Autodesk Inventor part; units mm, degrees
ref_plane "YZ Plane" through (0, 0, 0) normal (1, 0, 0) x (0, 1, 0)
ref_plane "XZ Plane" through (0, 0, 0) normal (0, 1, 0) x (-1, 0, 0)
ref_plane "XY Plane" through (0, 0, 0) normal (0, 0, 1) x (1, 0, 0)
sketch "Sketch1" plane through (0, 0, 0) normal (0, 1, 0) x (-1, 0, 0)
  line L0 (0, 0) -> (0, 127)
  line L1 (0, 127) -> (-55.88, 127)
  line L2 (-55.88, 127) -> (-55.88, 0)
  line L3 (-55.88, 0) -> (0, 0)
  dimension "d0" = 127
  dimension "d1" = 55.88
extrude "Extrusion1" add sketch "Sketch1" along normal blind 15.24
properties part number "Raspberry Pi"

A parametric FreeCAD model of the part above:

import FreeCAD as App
import Part
import Sketcher

V = App.Vector
Q = App.Units.Quantity


def add_polygon(sketch, points):
    """Adds a closed chain of lines whose ends are joined by coincident constraints."""
    first, n = sketch.GeometryCount, len(points)
    for a, b in zip(points, points[1:] + points[:1]):
        sketch.addGeometry(Part.LineSegment(App.Vector(*a, 0), App.Vector(*b, 0)), False)
    for i in range(n):
        sketch.addConstraint(Sketcher.Constraint("Coincident", first + i, 2, first + (i + 1) % n, 1))

doc = App.newDocument("Part")
body = doc.addObject("PartDesign::Body", "Body")

# Sketch on XZ plane
sketch1 = body.newObject("Sketcher::SketchObject", "Sketch")
sketch1.AttachmentSupport = (doc.getObject("XZ_Plane"), [""])
sketch1.MapMode = "FlatFace"
add_polygon(sketch1, [(55.88, 0), (0, 0), (0, 127), (55.88, 127)])  # lines 0-3
sketch1.addConstraint([
    Sketcher.Constraint("Horizontal", 0),
    Sketcher.Constraint("Vertical", 1),
    Sketcher.Constraint("Horizontal", 2),
    Sketcher.Constraint("Vertical", 3),
    Sketcher.Constraint("Coincident", 0, 2, -1, 1),
    Sketcher.Constraint("DistanceY", 1, 1, 1, 2, Q("5 in")),
    Sketcher.Constraint("DistanceX", 0, 2, 0, 1, Q("2.2 in")),
])
pad1 = body.newObject("PartDesign::Pad", "Pad")
pad1.Profile = sketch1
pad1.Length = Q("0.6 in")
pad1.Reversed = True

doc.recompute()
